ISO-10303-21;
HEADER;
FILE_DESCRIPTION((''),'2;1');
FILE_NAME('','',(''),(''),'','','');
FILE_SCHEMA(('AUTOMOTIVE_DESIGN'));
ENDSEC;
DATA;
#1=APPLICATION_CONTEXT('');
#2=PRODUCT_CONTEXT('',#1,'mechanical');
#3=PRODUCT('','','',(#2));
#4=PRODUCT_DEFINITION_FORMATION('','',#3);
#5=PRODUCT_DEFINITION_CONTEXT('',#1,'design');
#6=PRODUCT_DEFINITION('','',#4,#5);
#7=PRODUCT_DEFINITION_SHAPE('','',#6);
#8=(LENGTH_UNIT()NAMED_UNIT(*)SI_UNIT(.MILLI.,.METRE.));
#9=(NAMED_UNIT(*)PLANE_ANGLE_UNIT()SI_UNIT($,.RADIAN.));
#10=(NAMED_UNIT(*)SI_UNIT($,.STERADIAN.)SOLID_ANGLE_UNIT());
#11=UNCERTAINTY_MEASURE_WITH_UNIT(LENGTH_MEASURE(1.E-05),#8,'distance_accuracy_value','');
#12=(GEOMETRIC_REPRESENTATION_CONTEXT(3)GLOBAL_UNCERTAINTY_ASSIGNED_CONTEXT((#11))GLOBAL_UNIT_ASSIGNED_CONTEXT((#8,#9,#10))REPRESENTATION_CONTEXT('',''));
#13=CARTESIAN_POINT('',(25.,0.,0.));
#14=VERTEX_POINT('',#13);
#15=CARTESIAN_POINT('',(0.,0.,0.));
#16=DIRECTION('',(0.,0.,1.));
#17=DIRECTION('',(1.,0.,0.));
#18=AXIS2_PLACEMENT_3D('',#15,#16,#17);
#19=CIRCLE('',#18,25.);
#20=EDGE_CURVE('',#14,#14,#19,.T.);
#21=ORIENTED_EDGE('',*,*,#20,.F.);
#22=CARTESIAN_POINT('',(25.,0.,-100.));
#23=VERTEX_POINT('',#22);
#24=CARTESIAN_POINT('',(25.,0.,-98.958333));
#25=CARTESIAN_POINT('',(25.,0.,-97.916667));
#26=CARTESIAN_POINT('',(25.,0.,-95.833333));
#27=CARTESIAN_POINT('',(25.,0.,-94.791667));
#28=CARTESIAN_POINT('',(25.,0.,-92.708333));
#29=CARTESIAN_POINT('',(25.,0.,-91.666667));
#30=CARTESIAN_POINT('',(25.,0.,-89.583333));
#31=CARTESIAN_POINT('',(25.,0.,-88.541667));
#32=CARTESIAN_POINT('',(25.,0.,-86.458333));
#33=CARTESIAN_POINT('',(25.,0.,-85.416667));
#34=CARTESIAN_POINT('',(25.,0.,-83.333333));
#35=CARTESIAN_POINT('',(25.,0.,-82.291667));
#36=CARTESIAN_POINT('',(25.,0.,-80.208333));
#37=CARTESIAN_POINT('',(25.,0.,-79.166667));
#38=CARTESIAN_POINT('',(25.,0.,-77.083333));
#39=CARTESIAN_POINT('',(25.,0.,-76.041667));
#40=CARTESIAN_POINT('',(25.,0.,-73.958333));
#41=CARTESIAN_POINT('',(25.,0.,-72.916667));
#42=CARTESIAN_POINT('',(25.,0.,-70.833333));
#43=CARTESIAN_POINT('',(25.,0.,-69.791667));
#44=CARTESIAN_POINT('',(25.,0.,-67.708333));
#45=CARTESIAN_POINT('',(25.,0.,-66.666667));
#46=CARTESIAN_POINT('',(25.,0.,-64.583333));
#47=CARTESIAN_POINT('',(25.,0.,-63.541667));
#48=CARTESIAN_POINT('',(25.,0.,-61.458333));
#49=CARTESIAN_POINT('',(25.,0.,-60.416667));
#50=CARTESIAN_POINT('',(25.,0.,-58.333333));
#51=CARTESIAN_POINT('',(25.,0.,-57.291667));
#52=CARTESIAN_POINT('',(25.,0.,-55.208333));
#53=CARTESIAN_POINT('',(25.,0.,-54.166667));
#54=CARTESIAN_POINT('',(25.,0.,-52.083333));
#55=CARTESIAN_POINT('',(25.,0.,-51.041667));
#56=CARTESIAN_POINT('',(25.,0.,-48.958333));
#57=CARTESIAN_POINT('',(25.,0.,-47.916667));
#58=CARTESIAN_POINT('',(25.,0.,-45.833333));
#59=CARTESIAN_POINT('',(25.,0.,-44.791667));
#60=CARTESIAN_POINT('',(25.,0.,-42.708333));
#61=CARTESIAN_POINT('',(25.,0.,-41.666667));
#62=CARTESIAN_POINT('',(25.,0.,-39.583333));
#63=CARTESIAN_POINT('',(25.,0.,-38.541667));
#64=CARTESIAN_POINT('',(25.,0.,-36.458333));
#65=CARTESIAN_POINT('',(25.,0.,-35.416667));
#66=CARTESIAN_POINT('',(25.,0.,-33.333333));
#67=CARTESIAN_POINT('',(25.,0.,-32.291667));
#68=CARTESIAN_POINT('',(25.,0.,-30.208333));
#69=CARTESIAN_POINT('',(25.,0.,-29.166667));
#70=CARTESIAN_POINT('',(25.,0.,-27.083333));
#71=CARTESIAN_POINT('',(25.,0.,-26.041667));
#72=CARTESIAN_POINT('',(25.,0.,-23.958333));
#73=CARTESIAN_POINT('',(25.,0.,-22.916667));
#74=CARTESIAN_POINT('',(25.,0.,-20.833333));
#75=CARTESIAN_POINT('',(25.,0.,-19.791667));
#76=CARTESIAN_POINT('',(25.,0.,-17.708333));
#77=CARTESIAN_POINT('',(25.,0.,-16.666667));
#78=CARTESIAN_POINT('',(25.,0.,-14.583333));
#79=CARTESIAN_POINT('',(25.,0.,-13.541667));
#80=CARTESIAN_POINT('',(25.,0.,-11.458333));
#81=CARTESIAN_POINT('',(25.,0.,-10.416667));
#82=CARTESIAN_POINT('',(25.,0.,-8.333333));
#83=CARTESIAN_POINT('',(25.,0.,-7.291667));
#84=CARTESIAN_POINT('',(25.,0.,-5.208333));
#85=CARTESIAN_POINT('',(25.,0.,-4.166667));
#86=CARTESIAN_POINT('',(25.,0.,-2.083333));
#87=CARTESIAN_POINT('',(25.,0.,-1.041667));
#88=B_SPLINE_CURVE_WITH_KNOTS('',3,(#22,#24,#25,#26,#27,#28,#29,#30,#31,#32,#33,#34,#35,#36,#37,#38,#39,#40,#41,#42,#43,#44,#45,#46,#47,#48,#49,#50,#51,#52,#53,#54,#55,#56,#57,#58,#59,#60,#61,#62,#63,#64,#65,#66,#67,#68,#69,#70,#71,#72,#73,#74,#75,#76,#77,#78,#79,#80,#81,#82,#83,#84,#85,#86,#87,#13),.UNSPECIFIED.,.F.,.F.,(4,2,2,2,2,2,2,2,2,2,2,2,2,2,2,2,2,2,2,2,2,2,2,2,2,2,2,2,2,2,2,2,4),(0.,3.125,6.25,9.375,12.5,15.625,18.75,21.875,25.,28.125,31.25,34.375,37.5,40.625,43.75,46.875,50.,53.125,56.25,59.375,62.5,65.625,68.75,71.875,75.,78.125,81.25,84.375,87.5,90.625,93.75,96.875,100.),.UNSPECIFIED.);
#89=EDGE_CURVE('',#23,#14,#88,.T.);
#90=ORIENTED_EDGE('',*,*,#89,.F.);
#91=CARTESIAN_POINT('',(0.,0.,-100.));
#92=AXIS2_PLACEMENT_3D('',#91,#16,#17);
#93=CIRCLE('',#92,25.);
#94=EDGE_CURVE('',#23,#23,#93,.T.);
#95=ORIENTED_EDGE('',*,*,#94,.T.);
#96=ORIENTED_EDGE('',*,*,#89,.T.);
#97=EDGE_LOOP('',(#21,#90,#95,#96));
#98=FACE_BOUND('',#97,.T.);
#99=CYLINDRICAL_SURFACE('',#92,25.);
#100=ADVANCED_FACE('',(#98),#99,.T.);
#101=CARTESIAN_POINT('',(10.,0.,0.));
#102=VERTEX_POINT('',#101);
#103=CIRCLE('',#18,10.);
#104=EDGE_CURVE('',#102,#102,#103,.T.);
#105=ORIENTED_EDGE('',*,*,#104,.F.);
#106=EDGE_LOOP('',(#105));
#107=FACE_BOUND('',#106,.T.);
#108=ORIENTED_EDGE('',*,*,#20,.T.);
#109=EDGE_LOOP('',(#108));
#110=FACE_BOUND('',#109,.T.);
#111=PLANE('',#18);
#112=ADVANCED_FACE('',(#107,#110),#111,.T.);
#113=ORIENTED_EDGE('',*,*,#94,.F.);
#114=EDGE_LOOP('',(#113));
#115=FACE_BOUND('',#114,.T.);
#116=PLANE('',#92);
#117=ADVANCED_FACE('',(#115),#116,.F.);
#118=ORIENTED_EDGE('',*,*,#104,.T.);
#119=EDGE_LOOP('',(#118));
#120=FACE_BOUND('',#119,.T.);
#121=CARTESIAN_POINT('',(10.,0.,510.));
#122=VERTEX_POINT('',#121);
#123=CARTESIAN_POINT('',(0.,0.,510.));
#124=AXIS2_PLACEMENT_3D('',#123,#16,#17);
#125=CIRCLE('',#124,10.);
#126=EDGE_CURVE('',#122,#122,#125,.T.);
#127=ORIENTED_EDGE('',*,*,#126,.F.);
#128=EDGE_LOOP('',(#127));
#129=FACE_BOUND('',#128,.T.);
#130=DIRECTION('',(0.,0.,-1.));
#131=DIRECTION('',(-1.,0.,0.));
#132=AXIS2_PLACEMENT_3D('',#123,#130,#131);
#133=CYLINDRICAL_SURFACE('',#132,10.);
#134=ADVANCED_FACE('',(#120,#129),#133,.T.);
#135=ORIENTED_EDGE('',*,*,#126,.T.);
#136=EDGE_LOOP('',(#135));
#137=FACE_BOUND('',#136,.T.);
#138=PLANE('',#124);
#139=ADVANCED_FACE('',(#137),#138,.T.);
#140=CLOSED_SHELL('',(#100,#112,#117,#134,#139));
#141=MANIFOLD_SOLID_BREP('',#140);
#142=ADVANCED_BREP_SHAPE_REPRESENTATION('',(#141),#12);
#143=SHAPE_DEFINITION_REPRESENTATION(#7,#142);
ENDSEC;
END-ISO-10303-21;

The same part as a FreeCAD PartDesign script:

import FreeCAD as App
import Part
import Sketcher

V = App.Vector

doc = App.newDocument("Part")
body = doc.addObject("PartDesign::Body", "Body")

sketch1 = body.newObject("Sketcher::SketchObject", "Sketch")
sketch1.AttachmentSupport = (doc.getObject("XY_Plane"), [""])
sketch1.MapMode = "FlatFace"
sketch1.addGeometry(Part.Circle(V(0, 0, 0), V(0, 0, 1), 25), False)
sketch1.addConstraint(Sketcher.Constraint("Coincident", 0, 3, -1, 1))
sketch1.addConstraint(Sketcher.Constraint("Diameter", 0, 50.0))
pad1 = body.newObject("PartDesign::Pad", "Pad")
pad1.Profile = sketch1
pad1.Length = 100
pad1.Reversed = True

sketch2 = body.newObject("Sketcher::SketchObject", "Sketch001")
sketch2.AttachmentSupport = (doc.getObject("XY_Plane"), [""])
sketch2.MapMode = "FlatFace"
sketch2.addGeometry(Part.Circle(V(0, 0, 0), V(0, 0, 1), 10), False)
sketch2.addConstraint(Sketcher.Constraint("Coincident", 0, 3, -1, 1))
sketch2.addConstraint(Sketcher.Constraint("Diameter", 0, 20.0))
pad2 = body.newObject("PartDesign::Pad", "Pad001")
pad2.Profile = sketch2
pad2.Length = 510

doc.recompute()
